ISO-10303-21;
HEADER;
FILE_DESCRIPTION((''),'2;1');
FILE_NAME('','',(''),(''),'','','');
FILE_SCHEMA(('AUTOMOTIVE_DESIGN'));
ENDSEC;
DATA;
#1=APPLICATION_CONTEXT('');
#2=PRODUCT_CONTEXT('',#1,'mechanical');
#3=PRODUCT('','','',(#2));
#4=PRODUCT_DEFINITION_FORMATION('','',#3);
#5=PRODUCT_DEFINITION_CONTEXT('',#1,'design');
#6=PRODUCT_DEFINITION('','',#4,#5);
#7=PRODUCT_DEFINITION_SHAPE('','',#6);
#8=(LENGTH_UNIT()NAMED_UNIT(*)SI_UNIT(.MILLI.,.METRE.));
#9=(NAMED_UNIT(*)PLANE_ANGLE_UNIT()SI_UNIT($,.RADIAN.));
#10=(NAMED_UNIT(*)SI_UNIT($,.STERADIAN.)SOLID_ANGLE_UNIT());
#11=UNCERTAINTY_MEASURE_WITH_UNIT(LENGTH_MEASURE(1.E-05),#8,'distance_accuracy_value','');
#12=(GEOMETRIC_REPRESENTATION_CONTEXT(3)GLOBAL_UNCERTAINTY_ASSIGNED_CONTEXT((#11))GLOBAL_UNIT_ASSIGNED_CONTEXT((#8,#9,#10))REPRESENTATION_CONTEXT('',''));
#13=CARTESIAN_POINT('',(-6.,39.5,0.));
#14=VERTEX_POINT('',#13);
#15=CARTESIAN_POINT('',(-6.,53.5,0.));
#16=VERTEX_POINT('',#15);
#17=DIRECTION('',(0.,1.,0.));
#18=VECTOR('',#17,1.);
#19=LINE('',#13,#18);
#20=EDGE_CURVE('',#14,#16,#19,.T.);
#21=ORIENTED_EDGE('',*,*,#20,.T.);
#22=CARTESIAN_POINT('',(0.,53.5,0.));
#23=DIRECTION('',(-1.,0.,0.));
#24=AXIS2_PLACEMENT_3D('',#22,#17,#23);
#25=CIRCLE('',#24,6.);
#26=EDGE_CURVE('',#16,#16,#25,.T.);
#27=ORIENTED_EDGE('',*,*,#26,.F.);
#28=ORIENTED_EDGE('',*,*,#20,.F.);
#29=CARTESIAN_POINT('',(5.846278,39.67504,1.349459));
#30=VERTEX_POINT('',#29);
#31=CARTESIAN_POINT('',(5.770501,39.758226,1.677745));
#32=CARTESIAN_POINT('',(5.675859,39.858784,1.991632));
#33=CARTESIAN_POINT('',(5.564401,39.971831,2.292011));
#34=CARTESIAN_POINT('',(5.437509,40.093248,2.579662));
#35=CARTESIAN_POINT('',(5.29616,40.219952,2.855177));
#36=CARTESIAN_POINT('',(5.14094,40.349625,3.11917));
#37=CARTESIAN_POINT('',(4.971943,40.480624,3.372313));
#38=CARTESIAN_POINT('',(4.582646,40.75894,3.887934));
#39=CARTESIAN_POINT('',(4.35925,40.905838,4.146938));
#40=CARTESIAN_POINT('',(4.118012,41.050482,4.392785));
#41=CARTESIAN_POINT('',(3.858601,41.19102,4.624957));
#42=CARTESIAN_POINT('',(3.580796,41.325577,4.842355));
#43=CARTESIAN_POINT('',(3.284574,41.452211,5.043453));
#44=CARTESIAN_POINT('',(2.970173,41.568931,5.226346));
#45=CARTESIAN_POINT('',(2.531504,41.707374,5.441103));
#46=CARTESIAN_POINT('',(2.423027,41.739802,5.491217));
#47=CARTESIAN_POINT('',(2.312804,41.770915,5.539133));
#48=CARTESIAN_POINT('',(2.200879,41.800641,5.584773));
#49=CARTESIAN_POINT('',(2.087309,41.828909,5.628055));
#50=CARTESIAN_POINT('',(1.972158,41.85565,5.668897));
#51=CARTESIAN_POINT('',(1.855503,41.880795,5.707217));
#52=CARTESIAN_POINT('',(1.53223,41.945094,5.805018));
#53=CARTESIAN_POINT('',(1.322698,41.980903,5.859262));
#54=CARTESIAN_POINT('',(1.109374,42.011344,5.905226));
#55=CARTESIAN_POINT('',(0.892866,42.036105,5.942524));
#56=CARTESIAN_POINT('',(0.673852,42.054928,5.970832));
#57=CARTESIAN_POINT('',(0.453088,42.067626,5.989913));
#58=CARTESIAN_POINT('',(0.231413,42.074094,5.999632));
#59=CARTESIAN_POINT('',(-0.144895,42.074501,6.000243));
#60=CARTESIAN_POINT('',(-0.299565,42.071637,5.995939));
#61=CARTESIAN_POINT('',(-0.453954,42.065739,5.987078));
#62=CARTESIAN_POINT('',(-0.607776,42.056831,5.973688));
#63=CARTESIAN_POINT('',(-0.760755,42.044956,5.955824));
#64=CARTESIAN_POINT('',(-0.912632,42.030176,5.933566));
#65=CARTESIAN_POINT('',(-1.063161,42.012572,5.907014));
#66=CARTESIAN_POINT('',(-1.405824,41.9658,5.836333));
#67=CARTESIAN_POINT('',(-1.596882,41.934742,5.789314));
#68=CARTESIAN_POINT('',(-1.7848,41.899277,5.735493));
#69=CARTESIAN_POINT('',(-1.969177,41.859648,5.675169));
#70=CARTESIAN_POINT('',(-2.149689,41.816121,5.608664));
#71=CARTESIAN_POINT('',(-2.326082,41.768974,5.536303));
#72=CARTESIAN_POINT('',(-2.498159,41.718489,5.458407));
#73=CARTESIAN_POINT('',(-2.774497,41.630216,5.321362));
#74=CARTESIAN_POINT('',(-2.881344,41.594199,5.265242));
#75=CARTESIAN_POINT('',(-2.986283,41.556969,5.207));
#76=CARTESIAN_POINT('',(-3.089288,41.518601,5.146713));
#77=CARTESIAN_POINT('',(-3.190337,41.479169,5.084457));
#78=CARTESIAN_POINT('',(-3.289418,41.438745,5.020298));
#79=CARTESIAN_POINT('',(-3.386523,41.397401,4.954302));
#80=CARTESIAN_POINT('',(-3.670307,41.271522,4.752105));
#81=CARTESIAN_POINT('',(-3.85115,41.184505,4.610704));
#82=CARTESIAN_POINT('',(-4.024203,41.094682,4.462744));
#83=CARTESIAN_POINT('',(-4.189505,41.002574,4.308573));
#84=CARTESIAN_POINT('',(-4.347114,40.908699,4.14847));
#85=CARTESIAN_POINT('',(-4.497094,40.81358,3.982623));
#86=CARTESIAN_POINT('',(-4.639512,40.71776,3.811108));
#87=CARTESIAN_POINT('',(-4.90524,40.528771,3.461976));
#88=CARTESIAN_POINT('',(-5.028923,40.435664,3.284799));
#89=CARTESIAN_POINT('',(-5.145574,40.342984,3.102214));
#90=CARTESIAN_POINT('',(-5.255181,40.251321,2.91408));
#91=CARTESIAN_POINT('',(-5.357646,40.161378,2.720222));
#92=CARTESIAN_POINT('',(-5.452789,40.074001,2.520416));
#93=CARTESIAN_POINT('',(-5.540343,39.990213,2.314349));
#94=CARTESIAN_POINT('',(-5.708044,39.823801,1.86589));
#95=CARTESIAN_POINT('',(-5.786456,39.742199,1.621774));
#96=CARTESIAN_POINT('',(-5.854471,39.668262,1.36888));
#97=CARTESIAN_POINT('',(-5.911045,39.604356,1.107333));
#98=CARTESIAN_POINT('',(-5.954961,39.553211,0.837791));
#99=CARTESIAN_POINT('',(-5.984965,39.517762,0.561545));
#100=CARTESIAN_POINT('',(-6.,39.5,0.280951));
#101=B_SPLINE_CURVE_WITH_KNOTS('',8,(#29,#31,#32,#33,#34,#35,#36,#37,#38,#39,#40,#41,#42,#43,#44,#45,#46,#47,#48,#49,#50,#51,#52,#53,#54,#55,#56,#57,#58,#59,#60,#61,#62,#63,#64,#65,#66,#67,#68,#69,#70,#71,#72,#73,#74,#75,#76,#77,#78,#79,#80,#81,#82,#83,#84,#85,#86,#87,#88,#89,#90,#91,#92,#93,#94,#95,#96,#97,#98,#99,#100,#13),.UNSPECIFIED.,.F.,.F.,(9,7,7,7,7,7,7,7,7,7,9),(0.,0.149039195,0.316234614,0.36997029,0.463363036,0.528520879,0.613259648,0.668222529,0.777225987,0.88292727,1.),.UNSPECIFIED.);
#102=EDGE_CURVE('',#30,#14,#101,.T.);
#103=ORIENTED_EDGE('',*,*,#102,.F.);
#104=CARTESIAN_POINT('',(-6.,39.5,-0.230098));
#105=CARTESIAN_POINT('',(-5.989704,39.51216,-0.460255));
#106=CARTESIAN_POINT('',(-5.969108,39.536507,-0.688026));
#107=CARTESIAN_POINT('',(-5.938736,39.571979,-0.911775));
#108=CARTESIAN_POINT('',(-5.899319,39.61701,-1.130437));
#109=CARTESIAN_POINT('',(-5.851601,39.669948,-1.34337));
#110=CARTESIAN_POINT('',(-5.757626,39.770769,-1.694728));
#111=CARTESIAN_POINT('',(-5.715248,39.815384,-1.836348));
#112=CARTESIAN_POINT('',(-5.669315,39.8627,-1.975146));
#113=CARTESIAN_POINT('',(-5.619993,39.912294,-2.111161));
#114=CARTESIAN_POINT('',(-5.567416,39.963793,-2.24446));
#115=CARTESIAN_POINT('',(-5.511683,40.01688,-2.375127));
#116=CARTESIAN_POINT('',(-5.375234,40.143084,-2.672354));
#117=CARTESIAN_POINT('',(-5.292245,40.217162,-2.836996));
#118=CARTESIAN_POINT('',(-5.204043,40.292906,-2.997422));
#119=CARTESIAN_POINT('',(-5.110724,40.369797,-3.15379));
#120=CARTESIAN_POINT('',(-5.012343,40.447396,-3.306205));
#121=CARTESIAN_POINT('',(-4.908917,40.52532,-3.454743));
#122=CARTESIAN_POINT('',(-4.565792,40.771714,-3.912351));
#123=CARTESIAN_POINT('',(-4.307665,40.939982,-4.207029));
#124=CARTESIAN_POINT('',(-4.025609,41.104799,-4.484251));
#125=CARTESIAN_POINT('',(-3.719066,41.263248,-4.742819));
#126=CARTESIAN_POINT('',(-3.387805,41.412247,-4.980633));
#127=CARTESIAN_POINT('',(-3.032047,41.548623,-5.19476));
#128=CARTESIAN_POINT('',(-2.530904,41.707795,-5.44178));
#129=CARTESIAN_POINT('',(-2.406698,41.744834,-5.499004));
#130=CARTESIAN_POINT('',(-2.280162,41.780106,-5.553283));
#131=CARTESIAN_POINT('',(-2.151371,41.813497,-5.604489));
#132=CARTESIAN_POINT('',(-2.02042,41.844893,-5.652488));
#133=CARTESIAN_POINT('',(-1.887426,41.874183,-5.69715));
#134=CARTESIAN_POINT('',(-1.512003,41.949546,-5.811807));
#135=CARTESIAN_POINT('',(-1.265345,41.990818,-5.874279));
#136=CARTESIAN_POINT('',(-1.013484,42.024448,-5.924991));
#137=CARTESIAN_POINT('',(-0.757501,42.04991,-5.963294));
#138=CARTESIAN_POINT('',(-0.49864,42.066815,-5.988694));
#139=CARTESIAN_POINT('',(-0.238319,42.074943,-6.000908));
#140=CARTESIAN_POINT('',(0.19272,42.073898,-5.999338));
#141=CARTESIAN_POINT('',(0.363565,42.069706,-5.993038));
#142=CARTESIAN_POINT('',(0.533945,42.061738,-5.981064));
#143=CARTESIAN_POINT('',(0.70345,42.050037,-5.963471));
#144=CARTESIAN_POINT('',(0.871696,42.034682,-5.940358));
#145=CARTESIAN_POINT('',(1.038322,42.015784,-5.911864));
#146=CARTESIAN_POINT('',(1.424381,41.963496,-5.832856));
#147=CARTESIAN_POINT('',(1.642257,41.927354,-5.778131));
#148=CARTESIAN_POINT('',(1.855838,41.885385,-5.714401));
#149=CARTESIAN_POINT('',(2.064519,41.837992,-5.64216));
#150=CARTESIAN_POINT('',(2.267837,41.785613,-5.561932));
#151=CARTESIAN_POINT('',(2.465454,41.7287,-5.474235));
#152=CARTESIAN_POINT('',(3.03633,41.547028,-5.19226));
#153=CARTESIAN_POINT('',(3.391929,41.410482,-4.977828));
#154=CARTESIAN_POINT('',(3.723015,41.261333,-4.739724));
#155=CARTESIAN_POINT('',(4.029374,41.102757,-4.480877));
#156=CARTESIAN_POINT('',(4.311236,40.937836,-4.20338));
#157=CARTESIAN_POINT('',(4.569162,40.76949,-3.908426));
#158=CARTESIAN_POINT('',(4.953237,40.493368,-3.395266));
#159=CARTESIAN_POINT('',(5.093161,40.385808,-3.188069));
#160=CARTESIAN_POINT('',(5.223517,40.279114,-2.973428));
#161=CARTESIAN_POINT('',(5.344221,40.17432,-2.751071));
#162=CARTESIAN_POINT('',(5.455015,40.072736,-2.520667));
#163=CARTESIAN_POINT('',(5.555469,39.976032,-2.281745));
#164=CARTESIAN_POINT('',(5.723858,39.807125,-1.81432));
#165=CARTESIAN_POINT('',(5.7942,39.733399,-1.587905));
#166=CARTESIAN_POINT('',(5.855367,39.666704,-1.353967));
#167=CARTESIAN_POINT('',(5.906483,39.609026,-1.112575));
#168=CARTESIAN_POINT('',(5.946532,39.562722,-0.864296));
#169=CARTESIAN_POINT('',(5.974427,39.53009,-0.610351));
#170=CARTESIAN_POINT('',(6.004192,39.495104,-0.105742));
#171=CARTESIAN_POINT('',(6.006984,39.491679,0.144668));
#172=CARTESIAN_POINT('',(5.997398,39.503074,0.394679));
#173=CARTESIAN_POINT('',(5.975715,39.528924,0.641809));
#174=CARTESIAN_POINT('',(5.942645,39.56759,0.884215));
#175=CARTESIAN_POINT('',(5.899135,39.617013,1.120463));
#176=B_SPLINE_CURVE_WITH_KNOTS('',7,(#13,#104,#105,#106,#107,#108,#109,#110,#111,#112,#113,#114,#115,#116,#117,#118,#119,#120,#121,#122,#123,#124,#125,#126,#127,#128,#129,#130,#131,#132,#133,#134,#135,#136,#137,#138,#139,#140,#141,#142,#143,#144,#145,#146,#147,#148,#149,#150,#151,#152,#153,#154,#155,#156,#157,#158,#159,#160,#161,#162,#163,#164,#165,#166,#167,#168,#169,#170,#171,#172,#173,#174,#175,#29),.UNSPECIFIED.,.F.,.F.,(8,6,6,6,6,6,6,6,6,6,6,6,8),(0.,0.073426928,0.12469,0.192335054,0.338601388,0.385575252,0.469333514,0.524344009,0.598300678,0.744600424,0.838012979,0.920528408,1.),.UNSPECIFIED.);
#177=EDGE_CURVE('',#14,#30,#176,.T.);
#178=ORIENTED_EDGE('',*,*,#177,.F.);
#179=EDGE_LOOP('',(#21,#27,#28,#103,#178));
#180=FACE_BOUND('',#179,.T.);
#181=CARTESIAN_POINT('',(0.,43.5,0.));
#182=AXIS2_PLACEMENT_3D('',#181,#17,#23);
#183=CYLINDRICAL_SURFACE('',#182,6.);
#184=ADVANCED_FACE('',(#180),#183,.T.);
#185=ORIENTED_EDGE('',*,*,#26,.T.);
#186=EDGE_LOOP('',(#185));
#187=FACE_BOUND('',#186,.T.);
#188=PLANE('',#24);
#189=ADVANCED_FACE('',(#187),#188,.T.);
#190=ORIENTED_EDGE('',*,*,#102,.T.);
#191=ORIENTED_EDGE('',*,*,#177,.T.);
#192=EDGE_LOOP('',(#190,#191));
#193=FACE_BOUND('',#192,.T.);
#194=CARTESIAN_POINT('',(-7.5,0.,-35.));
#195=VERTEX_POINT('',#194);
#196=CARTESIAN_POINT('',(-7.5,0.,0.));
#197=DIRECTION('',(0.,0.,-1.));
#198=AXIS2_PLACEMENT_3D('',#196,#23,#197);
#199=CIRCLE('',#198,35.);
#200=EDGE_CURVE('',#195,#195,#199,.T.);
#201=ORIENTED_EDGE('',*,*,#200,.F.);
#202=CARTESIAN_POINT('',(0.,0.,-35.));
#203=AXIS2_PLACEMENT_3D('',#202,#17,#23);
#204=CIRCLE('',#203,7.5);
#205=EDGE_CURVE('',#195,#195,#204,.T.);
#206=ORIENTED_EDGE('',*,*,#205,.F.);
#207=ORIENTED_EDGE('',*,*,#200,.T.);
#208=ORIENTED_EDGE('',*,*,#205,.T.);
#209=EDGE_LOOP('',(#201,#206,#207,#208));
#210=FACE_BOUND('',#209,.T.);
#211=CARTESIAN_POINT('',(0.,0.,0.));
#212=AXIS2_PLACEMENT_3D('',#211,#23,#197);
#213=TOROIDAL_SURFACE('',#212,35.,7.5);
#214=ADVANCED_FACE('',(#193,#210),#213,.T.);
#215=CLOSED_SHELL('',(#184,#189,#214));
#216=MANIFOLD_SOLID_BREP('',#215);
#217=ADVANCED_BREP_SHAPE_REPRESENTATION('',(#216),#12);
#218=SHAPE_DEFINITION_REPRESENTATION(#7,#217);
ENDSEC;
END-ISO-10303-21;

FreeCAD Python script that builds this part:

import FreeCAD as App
import Part
import Sketcher
from FreeCAD import Vector

doc = App.newDocument("Part")
params = doc.addObject("Spreadsheet::Sheet", "Params")
for row, (alias, value) in enumerate([
    ("sketch1_diameter", "15 mm"),
    ("revolution_angle", "360 deg"),
    ("sketch2_diameter", "12 mm"),
    ("pad1_length", "10 mm"),
    ("pad1_length2", "5 mm"),
], start=1):
    params.set(f"A{row}", alias)
    params.set(f"B{row}", "=" + value)
    params.setAlias(f"B{row}", alias)

body = doc.addObject("PartDesign::Body", "Body")

# Sketch on XZ plane
sketch1 = body.newObject("Sketcher::SketchObject", "Sketch")
sketch1.AttachmentSupport = (doc.getObject("XZ_Plane"), [""])
sketch1.MapMode = "FlatFace"
sketch1.addGeometry(Part.Circle(Vector(0, -35, 0), Vector(0, 0, 1), 7.5), False)
sketch1.addConstraint(Sketcher.Constraint("PointOnObject", 0, 3, -2))
sketch1.addConstraint(Sketcher.Constraint("Diameter", 0, 15.0))
sketch1.addConstraint(Sketcher.Constraint("DistanceY", 0, 3, -1, 1, 35.0))
sketch1.setExpression("Constraints[1]", "Params.sketch1_diameter")
revolution = body.newObject("PartDesign::Revolution", "Revolution")
revolution.Profile = sketch1
revolution.ReferenceAxis = (sketch1, ["H_Axis"])
revolution.setExpression("Angle", "Params.revolution_angle")

# Sketch on XZ plane
sketch2 = body.newObject("Sketcher::SketchObject", "Sketch001")
sketch2.AttachmentSupport = (doc.getObject("XZ_Plane"), [""])
sketch2.MapMode = "FlatFace"
sketch2.AttachmentOffset = App.Placement(Vector(0, 0, -43.5), App.Rotation())
sketch2.addGeometry(Part.Circle(Vector(0, 0, 0), Vector(0, 0, 1), 6), False)
sketch2.addConstraint(Sketcher.Constraint("Coincident", 0, 3, -1, 1))
sketch2.addConstraint(Sketcher.Constraint("Diameter", 0, 12.0))
sketch2.setExpression("Constraints[1]", "Params.sketch2_diameter")
pad1 = body.newObject("PartDesign::Pad", "Pad")
pad1.Profile = sketch2
pad1.Type = "TwoLengths"
pad1.setExpression("Length", "Params.pad1_length")
pad1.setExpression("Length2", "Params.pad1_length2")
pad1.Reversed = True

doc.recompute()
